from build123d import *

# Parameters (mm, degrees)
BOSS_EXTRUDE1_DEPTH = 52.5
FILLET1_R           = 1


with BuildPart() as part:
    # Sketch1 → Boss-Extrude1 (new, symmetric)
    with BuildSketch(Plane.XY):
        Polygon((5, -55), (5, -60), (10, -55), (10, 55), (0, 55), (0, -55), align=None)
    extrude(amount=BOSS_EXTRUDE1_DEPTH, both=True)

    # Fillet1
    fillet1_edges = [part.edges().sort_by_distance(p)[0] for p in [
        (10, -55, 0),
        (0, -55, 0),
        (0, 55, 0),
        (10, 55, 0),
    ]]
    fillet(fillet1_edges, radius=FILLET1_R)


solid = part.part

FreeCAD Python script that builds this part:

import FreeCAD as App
import Part
import Sketcher

V = App.Vector
Q = App.Units.Quantity


def edges_at(feature, points):
    """Names of the edges that pass closest to the given points."""
    edges = feature.Shape.Edges
    near = lambda p: min(range(len(edges)), key=lambda i: edges[i].distToShape(Part.Vertex(*p))[0])
    return sorted({f"Edge{near(p) + 1}" for p in points})

doc = App.newDocument("Part")
body = doc.addObject("PartDesign::Body", "Body")

# Sketch on XY plane
sketch1 = body.newObject("Sketcher::SketchObject", "Sketch")
sketch1.AttachmentSupport = (doc.getObject("XY_Plane"), [""])
sketch1.MapMode = "FlatFace"
sketch1.addGeometry([
    Part.LineSegment(V(5, -55, 0), V(5, -60, 0)),  # 0
    Part.LineSegment(V(5, -60, 0), V(10, -55, 0)),  # 1
    Part.LineSegment(V(10, -55, 0), V(10, 55, 0)),  # 2
    Part.LineSegment(V(10, 55, 0), V(0, 55, 0)),  # 3
    Part.LineSegment(V(0, 55, 0), V(0, -55, 0)),  # 4
    Part.LineSegment(V(0, -55, 0), V(5, -55, 0)),  # 5
], False)
sketch1.addConstraint([
    Sketcher.Constraint("Coincident", 0, 2, 1, 1),
    Sketcher.Constraint("Coincident", 1, 2, 2, 1),
    Sketcher.Constraint("Coincident", 2, 2, 3, 1),
    Sketcher.Constraint("Coincident", 3, 2, 4, 1),
    Sketcher.Constraint("Coincident", 4, 2, 5, 1),
    Sketcher.Constraint("Coincident", 5, 2, 0, 1),
    Sketcher.Constraint("Vertical", 0),
    Sketcher.Constraint("Vertical", 2),
    Sketcher.Constraint("Horizontal", 3),
    Sketcher.Constraint("Vertical", 4),
    Sketcher.Constraint("Horizontal", 5),
    Sketcher.Constraint("Symmetric", 3, 2, 4, 2, -1, 1),
    Sketcher.Constraint("Horizontal", 1, 2, 4, 2),
    Sketcher.Constraint("Equal", 5, 0),
    Sketcher.Constraint("DistanceX", 3, 2, 3, 1, Q("10 mm")),
    Sketcher.Constraint("DistanceX", 5, 1, 5, 2, Q("5 mm")),
    Sketcher.Constraint("DistanceY", 2, 1, 2, 2, Q("110 mm")),
])
pad1 = body.newObject("PartDesign::Pad", "Pad")
pad1.Profile = sketch1
pad1.Length = 105
pad1.Midplane = True
doc.recompute()

fillet = body.newObject("PartDesign::Fillet", "Fillet")
fillet.Base = (pad1, edges_at(pad1, [
    (10, -55, 0),
    (0, -55, 0),
    (0, 55, 0),
    (10, 55, 0),
]))
fillet.Radius = 1

doc.recompute()
